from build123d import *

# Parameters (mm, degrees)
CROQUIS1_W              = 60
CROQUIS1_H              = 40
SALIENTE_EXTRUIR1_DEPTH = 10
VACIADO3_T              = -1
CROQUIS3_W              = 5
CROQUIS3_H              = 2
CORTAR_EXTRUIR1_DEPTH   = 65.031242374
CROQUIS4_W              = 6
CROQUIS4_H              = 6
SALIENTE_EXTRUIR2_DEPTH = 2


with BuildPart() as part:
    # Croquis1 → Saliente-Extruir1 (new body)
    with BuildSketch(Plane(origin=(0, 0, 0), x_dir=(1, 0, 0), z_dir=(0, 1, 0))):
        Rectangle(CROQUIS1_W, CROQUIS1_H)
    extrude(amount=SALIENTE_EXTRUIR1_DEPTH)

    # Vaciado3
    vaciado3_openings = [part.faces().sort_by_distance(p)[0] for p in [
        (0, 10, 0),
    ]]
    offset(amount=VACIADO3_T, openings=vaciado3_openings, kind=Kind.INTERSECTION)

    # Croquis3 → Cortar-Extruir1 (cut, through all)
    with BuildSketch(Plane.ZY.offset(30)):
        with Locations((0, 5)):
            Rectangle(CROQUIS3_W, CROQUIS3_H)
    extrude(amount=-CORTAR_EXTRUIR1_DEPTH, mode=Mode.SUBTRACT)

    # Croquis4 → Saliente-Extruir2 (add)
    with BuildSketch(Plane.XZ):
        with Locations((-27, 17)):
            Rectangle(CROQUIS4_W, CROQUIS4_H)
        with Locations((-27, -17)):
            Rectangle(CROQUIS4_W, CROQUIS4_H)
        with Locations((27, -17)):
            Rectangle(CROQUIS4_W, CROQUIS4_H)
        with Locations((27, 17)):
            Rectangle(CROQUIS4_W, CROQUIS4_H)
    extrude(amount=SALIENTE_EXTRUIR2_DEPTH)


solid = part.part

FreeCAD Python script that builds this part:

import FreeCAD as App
import Part
import Sketcher

V = App.Vector
Q = App.Units.Quantity


def faces_at(feature, points):
    """Names of the faces that lie closest to the given points."""
    faces = feature.Shape.Faces
    near = lambda p: min(range(len(faces)), key=lambda i: faces[i].distToShape(Part.Vertex(*p))[0])
    return sorted({f"Face{near(p) + 1}" for p in points})

doc = App.newDocument("Part")
body = doc.addObject("PartDesign::Body", "Body")

sketch1 = doc.addObject("Sketcher::SketchObject", "Sketch")
body.addObject(sketch1)
sketch1.AttachmentSupport = (doc.XZ_Plane, [""])
sketch1.MapMode = "FlatFace"
sketch1.addGeometry([
    Part.LineSegment(V(-30, -20, 0), V(-30, 20, 0)),
    Part.LineSegment(V(-30, 20, 0), V(30, 20, 0)),
    Part.LineSegment(V(30, 20, 0), V(30, -20, 0)),
    Part.LineSegment(V(30, -20, 0), V(-30, -20, 0)),
], False)
sketch1.addConstraint([
    Sketcher.Constraint("Coincident", 0, 2, 1, 1),
    Sketcher.Constraint("Coincident", 1, 2, 2, 1),
    Sketcher.Constraint("Coincident", 2, 2, 3, 1),
    Sketcher.Constraint("Coincident", 3, 2, 0, 1),
    Sketcher.Constraint("Vertical", 0),
    Sketcher.Constraint("Horizontal", 1),
    Sketcher.Constraint("Vertical", 2),
    Sketcher.Constraint("Horizontal", 3),
    Sketcher.Constraint("Symmetric", 0, 2, 2, 2, -1, 1),
    Sketcher.Constraint("DistanceX", 1, 1, 1, 2, Q("60 mm")),
    Sketcher.Constraint("DistanceY", 0, 1, 0, 2, Q("40 mm")),
])
pad1 = doc.addObject("PartDesign::Pad", "Pad")
body.addObject(pad1)
pad1.Profile = sketch1
pad1.Length = 10
pad1.Reversed = True
doc.recompute()

thickness = doc.addObject("PartDesign::Thickness", "Thickness")
body.addObject(thickness)
thickness.Base = (pad1, faces_at(pad1, [(0, 10, 0)]))
thickness.Value = 1
thickness.Reversed = True
thickness.Join = "Intersection"

sketch2 = doc.addObject("Sketcher::SketchObject", "Sketch001")
body.addObject(sketch2)
sketch2.AttachmentSupport = (doc.YZ_Plane, [""])
sketch2.MapMode = "FlatFace"
sketch2.AttachmentOffset = App.Placement(V(0, 0, -30), App.Rotation())
sketch2.addGeometry([
    Part.LineSegment(V(6, -2.5, 0), V(4, -2.5, 0)),
    Part.LineSegment(V(4, -2.5, 0), V(4, 2.5, 0)),
    Part.LineSegment(V(4, 2.5, 0), V(6, 2.5, 0)),
    Part.LineSegment(V(6, 2.5, 0), V(6, -2.5, 0)),
], False)
sketch2.addConstraint([
    Sketcher.Constraint("Coincident", 0, 2, 1, 1),
    Sketcher.Constraint("Coincident", 1, 2, 2, 1),
    Sketcher.Constraint("Coincident", 2, 2, 3, 1),
    Sketcher.Constraint("Coincident", 3, 2, 0, 1),
    Sketcher.Constraint("Horizontal", 0),
    Sketcher.Constraint("Vertical", 1),
    Sketcher.Constraint("Horizontal", 2),
    Sketcher.Constraint("Vertical", 3),
    Sketcher.Constraint("DistanceX", 0, 2, 0, 1, Q("2 mm")),
    Sketcher.Constraint("DistanceY", 1, 1, 1, 2, Q("5 mm")),
    Sketcher.Constraint("DistanceX", -1, 1, 0, 2, Q("4 mm")),
    Sketcher.Constraint("DistanceY", 0, 2, -1, 1, Q("2.5 mm")),
])
pocket1 = doc.addObject("PartDesign::Pocket", "Pocket")
body.addObject(pocket1)
pocket1.Profile = sketch2
pocket1.Type = "ThroughAll"
pocket1.Reversed = True

sketch3 = doc.addObject("Sketcher::SketchObject", "Sketch002")
body.addObject(sketch3)
sketch3.AttachmentSupport = (doc.XZ_Plane, [""])
sketch3.MapMode = "FlatFace"
sketch3.addGeometry([
    Part.LineSegment(V(-30, 20, 0), V(-30, 14, 0)),
    Part.LineSegment(V(-30, 14, 0), V(-24, 14, 0)),
    Part.LineSegment(V(-24, 14, 0), V(-24, 20, 0)),
    Part.LineSegment(V(-24, 20, 0), V(-30, 20, 0)),
    Part.LineSegment(V(-30, -14, 0), V(-30, -20, 0)),
    Part.LineSegment(V(-30, -20, 0), V(-24, -20, 0)),
    Part.LineSegment(V(-24, -20, 0), V(-24, -14, 0)),
    Part.LineSegment(V(-24, -14, 0), V(-30, -14, 0)),
    Part.LineSegment(V(24, -14, 0), V(24, -20, 0)),
    Part.LineSegment(V(24, -20, 0), V(30, -20, 0)),
    Part.LineSegment(V(30, -20, 0), V(30, -14, 0)),
    Part.LineSegment(V(30, -14, 0), V(24, -14, 0)),
    Part.LineSegment(V(24, 20, 0), V(24, 14, 0)),
    Part.LineSegment(V(24, 14, 0), V(30, 14, 0)),
    Part.LineSegment(V(30, 14, 0), V(30, 20, 0)),
    Part.LineSegment(V(30, 20, 0), V(24, 20, 0)),
], False)
sketch3.addConstraint([
    Sketcher.Constraint("Coincident", 0, 2, 1, 1),
    Sketcher.Constraint("Coincident", 1, 2, 2, 1),
    Sketcher.Constraint("Coincident", 2, 2, 3, 1),
    Sketcher.Constraint("Coincident", 3, 2, 0, 1),
    Sketcher.Constraint("Coincident", 4, 2, 5, 1),
    Sketcher.Constraint("Coincident", 5, 2, 6, 1),
    Sketcher.Constraint("Coincident", 6, 2, 7, 1),
    Sketcher.Constraint("Coincident", 7, 2, 4, 1),
    Sketcher.Constraint("Coincident", 8, 2, 9, 1),
    Sketcher.Constraint("Coincident", 9, 2, 10, 1),
    Sketcher.Constraint("Coincident", 10, 2, 11, 1),
    Sketcher.Constraint("Coincident", 11, 2, 8, 1),
    Sketcher.Constraint("Coincident", 12, 2, 13, 1),
    Sketcher.Constraint("Coincident", 13, 2, 14, 1),
    Sketcher.Constraint("Coincident", 14, 2, 15, 1),
    Sketcher.Constraint("Coincident", 15, 2, 12, 1),
    Sketcher.Constraint("Vertical", 0),
    Sketcher.Constraint("Horizontal", 1),
    Sketcher.Constraint("Vertical", 2),
    Sketcher.Constraint("Horizontal", 3),
    Sketcher.Constraint("Vertical", 4),
    Sketcher.Constraint("Horizontal", 5),
    Sketcher.Constraint("Vertical", 6),
    Sketcher.Constraint("Horizontal", 7),
    Sketcher.Constraint("Vertical", 8),
    Sketcher.Constraint("Horizontal", 9),
    Sketcher.Constraint("Vertical", 10),
    Sketcher.Constraint("Horizontal", 11),
    Sketcher.Constraint("Vertical", 12),
    Sketcher.Constraint("Horizontal", 13),
    Sketcher.Constraint("Vertical", 14),
    Sketcher.Constraint("Horizontal", 15),
    Sketcher.Constraint("Symmetric", 2, 2, 8, 2, -1, 1),
    Sketcher.Constraint("Symmetric", 0, 2, 10, 2, -1, 1),
    Sketcher.Constraint("Symmetric", 6, 2, 12, 2, -1, 1),
    Sketcher.Constraint("Symmetric", 4, 2, 14, 2, -1, 1),
    Sketcher.Constraint("Symmetric", 5, 2, 8, 2, -2),
    Sketcher.Constraint("Symmetric", 7, 2, 10, 2, -2),
    Sketcher.Constraint("Equal", 15, 0),
    Sketcher.Constraint("DistanceX", 1, 1, 1, 2, Q("6 mm")),
    Sketcher.Constraint("DistanceX", 0, 2, -1, 1, Q("30 mm")),
    Sketcher.Constraint("DistanceY", -1, 1, 0, 2, Q("14 mm")),
])
pad2 = doc.addObject("PartDesign::Pad", "Pad001")
body.addObject(pad2)
pad2.Profile = sketch3
pad2.Length = 2

doc.recompute()
